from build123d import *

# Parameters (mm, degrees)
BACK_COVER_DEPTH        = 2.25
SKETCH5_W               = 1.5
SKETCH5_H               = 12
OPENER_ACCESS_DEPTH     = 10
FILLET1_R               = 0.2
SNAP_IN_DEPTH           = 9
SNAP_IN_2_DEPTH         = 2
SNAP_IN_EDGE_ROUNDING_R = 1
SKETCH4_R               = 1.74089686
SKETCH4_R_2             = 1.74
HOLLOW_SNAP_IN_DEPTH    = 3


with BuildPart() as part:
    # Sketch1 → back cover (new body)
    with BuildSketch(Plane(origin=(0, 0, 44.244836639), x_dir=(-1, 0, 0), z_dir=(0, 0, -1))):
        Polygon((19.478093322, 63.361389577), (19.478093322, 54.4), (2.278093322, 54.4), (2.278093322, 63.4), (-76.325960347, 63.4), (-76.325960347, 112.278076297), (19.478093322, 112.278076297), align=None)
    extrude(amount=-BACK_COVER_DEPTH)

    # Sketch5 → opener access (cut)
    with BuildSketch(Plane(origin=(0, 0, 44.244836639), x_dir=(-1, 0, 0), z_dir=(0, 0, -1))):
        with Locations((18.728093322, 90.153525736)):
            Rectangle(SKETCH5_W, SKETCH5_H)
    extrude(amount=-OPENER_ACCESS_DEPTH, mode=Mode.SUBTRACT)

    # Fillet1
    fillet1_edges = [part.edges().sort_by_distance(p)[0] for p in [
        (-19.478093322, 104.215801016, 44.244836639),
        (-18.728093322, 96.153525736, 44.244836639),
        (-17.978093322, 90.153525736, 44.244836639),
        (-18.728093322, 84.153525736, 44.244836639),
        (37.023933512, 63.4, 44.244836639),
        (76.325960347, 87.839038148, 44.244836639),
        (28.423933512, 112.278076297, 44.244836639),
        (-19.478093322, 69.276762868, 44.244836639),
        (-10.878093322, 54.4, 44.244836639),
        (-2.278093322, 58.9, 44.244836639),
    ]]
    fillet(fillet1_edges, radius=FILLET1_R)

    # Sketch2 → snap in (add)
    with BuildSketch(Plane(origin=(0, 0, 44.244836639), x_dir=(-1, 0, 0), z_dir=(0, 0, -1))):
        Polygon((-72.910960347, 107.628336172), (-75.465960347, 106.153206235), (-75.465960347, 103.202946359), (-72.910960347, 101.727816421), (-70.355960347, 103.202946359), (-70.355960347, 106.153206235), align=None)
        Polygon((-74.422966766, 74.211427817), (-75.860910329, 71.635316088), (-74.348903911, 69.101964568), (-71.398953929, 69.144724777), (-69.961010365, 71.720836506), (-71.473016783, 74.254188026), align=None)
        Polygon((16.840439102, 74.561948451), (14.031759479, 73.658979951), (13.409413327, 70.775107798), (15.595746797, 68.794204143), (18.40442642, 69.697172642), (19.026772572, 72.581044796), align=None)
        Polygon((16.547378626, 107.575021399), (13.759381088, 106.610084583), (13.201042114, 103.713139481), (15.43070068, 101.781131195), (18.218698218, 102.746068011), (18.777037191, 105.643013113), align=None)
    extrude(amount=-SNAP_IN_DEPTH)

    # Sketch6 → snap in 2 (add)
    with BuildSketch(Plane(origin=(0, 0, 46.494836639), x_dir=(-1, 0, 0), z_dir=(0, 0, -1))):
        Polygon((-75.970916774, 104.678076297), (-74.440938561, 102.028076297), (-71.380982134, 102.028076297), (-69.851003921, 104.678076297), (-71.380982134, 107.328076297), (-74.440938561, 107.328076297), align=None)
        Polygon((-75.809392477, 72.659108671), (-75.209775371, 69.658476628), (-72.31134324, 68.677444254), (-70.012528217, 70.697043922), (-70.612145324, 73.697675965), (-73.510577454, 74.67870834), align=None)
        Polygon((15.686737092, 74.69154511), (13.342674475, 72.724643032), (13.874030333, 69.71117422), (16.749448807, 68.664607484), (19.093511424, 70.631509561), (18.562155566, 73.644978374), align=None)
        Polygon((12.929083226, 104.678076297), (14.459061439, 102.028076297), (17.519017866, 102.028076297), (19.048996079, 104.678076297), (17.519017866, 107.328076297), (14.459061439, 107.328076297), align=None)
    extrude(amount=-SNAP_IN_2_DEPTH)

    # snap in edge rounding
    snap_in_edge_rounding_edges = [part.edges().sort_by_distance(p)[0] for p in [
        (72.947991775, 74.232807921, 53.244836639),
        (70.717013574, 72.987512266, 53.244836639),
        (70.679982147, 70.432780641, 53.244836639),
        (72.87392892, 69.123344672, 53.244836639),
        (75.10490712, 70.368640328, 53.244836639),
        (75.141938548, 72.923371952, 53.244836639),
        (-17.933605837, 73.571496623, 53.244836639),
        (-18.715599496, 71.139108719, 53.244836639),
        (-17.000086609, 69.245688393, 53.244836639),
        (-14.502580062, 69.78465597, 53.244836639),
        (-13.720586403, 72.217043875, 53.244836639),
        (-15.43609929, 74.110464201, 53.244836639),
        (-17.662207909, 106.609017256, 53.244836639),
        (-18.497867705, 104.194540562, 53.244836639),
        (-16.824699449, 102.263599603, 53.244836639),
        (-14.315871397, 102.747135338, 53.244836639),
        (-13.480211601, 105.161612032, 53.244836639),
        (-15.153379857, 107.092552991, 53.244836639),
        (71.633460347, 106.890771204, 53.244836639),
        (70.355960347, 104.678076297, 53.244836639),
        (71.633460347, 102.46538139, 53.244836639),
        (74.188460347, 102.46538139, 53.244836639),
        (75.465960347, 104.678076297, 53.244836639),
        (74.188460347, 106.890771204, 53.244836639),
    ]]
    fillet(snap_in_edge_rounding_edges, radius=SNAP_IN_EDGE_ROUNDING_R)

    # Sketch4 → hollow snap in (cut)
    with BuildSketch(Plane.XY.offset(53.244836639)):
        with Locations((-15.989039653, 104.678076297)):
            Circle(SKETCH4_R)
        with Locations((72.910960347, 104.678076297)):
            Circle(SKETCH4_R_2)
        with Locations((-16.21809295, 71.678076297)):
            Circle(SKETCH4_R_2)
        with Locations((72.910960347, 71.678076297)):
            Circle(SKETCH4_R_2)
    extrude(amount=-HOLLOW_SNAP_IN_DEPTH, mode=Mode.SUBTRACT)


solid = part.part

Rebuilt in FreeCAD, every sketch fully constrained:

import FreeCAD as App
import Part
import Sketcher
from FreeCAD import Vector
Q = App.Units.Quantity


def edges_at(feature, points):
    """Names of the edges that pass closest to the given points."""
    edges = feature.Shape.Edges
    near = lambda p: min(range(len(edges)), key=lambda i: edges[i].distToShape(Part.Vertex(*p))[0])
    return sorted({f"Edge{near(p) + 1}" for p in points})


def add_polygon(sketch, points):
    """Adds a closed chain of lines whose ends are joined by coincident constraints."""
    first, n = sketch.GeometryCount, len(points)
    for a, b in zip(points, points[1:] + points[:1]):
        sketch.addGeometry(Part.LineSegment(App.Vector(*a, 0), App.Vector(*b, 0)), False)
    for i in range(n):
        sketch.addConstraint(Sketcher.Constraint("Coincident", first + i, 2, first + (i + 1) % n, 1))

doc = App.newDocument("Part")
body = doc.addObject("PartDesign::Body", "Body")

# Sketch on XY plane
sketch1 = body.newObject("Sketcher::SketchObject", "Sketch")
sketch1.AttachmentSupport = (doc.getObject("XY_Plane"), [""])
sketch1.MapMode = "FlatFace"
sketch1.AttachmentOffset = App.Placement(Vector(0, 0, 44.244837), App.Rotation())
add_polygon(sketch1, [(-19, 54), (-19, 112), (76, 112), (76, 63), (-2, 63), (-2, 54)])  # lines 0-5
sketch1.addConstraint([
    Sketcher.Constraint("Vertical", 0),
    Sketcher.Constraint("Horizontal", 1),
    Sketcher.Constraint("Vertical", 2),
    Sketcher.Constraint("Horizontal", 3),
    Sketcher.Constraint("Vertical", 4),
    Sketcher.Constraint("Horizontal", 5),
    Sketcher.Constraint("DistanceY", 4, 2, 4, 1, 9.0),
    Sketcher.Constraint("DistanceX", 5, 2, 5, 1, 17.2),
    Sketcher.Constraint("DistanceY", -1, 1, 2, 2, 63.4),
    Sketcher.Constraint("DistanceX", 1, 1, 1, 2, 95.804054),
    Sketcher.Constraint("DistanceY", 0, 1, 0, 2, 57.878076),
    Sketcher.Constraint("DistanceX", -1, 1, 1, 2, 76.32596),
])
pad1 = body.newObject("PartDesign::Pad", "Pad")
pad1.Profile = sketch1
pad1.Length = 2.25

# Sketch on XY plane
sketch2 = body.newObject("Sketcher::SketchObject", "Sketch001")
sketch2.AttachmentSupport = (doc.getObject("XY_Plane"), [""])
sketch2.MapMode = "FlatFace"
sketch2.AttachmentOffset = App.Placement(Vector(0, 0, 44.244837), App.Rotation())
add_polygon(sketch2, [(-18, 96.2), (-18, 84.2), (-19.5, 84.2), (-19.5, 96.2)])  # lines 0-3
sketch2.addConstraint([
    Sketcher.Constraint("Vertical", 0),
    Sketcher.Constraint("Horizontal", 1),
    Sketcher.Constraint("Vertical", 2),
    Sketcher.Constraint("Horizontal", 3),
    Sketcher.Constraint("DistanceY", 0, 2, 0, 1, 12.0),
    Sketcher.Constraint("DistanceX", 1, 2, 1, 1, 1.5),
    Sketcher.Constraint("DistanceX", 0, 2, -1, 1, 17.978093),
    Sketcher.Constraint("DistanceY", -1, 1, 0, 2, 84.153526),
])
pocket1 = body.newObject("PartDesign::Pocket", "Pocket")
pocket1.Profile = sketch2
pocket1.Length = 10
pocket1.Reversed = True
doc.recompute()

fillet = body.newObject("PartDesign::Fillet", "Fillet")
fillet.Base = (pocket1, edges_at(pocket1, [
    (-19.478, 104.216, 44.245),
    (-18.728, 96.154, 44.245),
    (-17.978, 90.154, 44.245),
    (-18.728, 84.154, 44.245),
    (37.024, 63.4, 44.245),
    (76.326, 87.839, 44.245),
    (28.424, 112.278, 44.245),
    (-19.478, 69.277, 44.245),
    (-10.878, 54.4, 44.245),
    (-2.278, 58.9, 44.245),
]))
fillet.Radius = 0.2

# Sketch on XY plane
sketch3 = body.newObject("Sketcher::SketchObject", "Sketch002")
sketch3.AttachmentSupport = (doc.getObject("XY_Plane"), [""])
sketch3.MapMode = "FlatFace"
sketch3.AttachmentOffset = App.Placement(Vector(0, 0, 44.244837), App.Rotation())
add_polygon(sketch3, [(72.9, 107.6), (75.5, 106.2), (75.5, 103.2), (72.9, 101.7), (70.4, 103.2), (70.4, 106.2)])  # lines 0-5
add_polygon(sketch3, [(74.4, 74.2), (75.9, 71.6), (74.3, 69.1), (71.4, 69.1), (70, 71.7), (71.5, 74.3)])  # lines 6-11
add_polygon(sketch3, [(-16.8, 74.6), (-14, 73.7), (-13.4, 70.8), (-15.6, 68.8), (-18.4, 69.7), (-19, 72.6)])  # lines 12-17
add_polygon(sketch3, [(-16.5, 107.6), (-13.8, 106.6), (-13.2, 103.7), (-15.4, 101.8), (-18.2, 102.7), (-18.8, 105.6)])  # lines 18-23
sketch3.addConstraint([
    Sketcher.Constraint("Vertical", 1),
    Sketcher.Constraint("Vertical", 4),
    Sketcher.Constraint("Parallel", 0, 3),
    Sketcher.Constraint("Parallel", 2, 5),
    Sketcher.Constraint("Parallel", 6, 9),
    Sketcher.Constraint("Parallel", 7, 10),
    Sketcher.Constraint("Parallel", 8, 11),
    Sketcher.Constraint("Parallel", 12, 15),
    Sketcher.Constraint("Parallel", 13, 16),
    Sketcher.Constraint("Parallel", 14, 17),
    Sketcher.Constraint("Parallel", 18, 21),
    Sketcher.Constraint("Parallel", 19, 22),
    Sketcher.Constraint("Parallel", 20, 23),
    Sketcher.Constraint("Horizontal", 1, 2, 3, 2),
    Sketcher.Constraint("Horizontal", 0, 2, 4, 2),
    Sketcher.Constraint("Vertical", 2, 2, 5, 2),
    Sketcher.Constraint("Equal", 5, 6),
    Sketcher.Constraint("Equal", 6, 7),
    Sketcher.Constraint("Equal", 7, 8),
    Sketcher.Constraint("Equal", 8, 9),
    Sketcher.Constraint("Equal", 11, 12),
    Sketcher.Constraint("Equal", 12, 13),
    Sketcher.Constraint("Equal", 13, 14),
    Sketcher.Constraint("Equal", 14, 15),
    Sketcher.Constraint("Equal", 17, 18),
    Sketcher.Constraint("Equal", 18, 19),
    Sketcher.Constraint("Equal", 19, 20),
    Sketcher.Constraint("Equal", 20, 21),
    Sketcher.Constraint("Angle", 0, Q("-30 deg")),
    Sketcher.Constraint("DistanceX", 3, 2, 1, 2, 5.11),
    Sketcher.Constraint("DistanceY", 1, 2, 1, 1, 2.95026),
    Sketcher.Constraint("DistanceX", 20, 2, -1, 1, 15.430701),
    Sketcher.Constraint("DistanceX", 21, 2, -1, 1, 18.218698),
    Sketcher.Constraint("DistanceY", 6, 2, 2, 2, 30.0925),
    Sketcher.Constraint("DistanceX", 9, 2, 6, 2, 5.8999),
    Sketcher.Constraint("DistanceX", 14, 2, 8, 2, 86.994701),
    Sketcher.Constraint("DistanceX", 22, 2, 17, 2, 1.936598),
    Sketcher.Constraint("DistanceX", -1, 1, 0, 2, 75.46596),
    Sketcher.Constraint("DistanceX", -1, 1, 6, 2, 75.86091),
    Sketcher.Constraint("DistanceY", -1, 1, 10, 2, 74.254188),
    Sketcher.Constraint("DistanceX", 12, 2, -1, 1, 14.031759),
    Sketcher.Constraint("DistanceY", -1, 1, 12, 2, 73.65898),
    Sketcher.Constraint("DistanceX", 17, 2, -1, 1, 16.840439),
    Sketcher.Constraint("DistanceX", 18, 2, -1, 1, 13.759381),
    Sketcher.Constraint("DistanceY", -1, 1, 19, 2, 103.713139),
    Sketcher.Constraint("DistanceY", 7, 2, 6, 2, 2.533352),
    Sketcher.Constraint("DistanceX", 8, 2, 7, 2, 2.94995),
    Sketcher.Constraint("DistanceY", 13, 2, 9, 2, 0.945729),
])
pad2 = body.newObject("PartDesign::Pad", "Pad001")
pad2.Profile = sketch3
pad2.Length = 9

# Sketch on XY plane
sketch4 = body.newObject("Sketcher::SketchObject", "Sketch003")
sketch4.AttachmentSupport = (doc.getObject("XY_Plane"), [""])
sketch4.MapMode = "FlatFace"
sketch4.AttachmentOffset = App.Placement(Vector(0, 0, 46.494837), App.Rotation())
add_polygon(sketch4, [(76, 104.7), (74.4, 102), (71.4, 102), (69.9, 104.7), (71.4, 107.3), (74.4, 107.3)])  # lines 0-5
add_polygon(sketch4, [(75.8, 72.7), (75.2, 69.7), (72.3, 68.7), (70, 70.7), (70.6, 73.7), (73.5, 74.7)])  # lines 6-11
add_polygon(sketch4, [(-15.7, 74.7), (-13.3, 72.7), (-13.9, 69.7), (-16.7, 68.7), (-19.1, 70.6), (-18.6, 73.6)])  # lines 12-17
add_polygon(sketch4, [(-12.9, 104.7), (-14.5, 102), (-17.5, 102), (-19, 104.7), (-17.5, 107.3), (-14.5, 107.3)])  # lines 18-23
sketch4.addConstraint([
    Sketcher.Constraint("Horizontal", 1),
    Sketcher.Constraint("Horizontal", 4),
    Sketcher.Constraint("Horizontal", 19),
    Sketcher.Constraint("Horizontal", 22),
    Sketcher.Constraint("Parallel", 0, 3),
    Sketcher.Constraint("Parallel", 2, 5),
    Sketcher.Constraint("Parallel", 6, 9),
    Sketcher.Constraint("Parallel", 7, 10),
    Sketcher.Constraint("Parallel", 8, 11),
    Sketcher.Constraint("Parallel", 12, 15),
    Sketcher.Constraint("Parallel", 13, 16),
    Sketcher.Constraint("Parallel", 14, 17),
    Sketcher.Constraint("Parallel", 3, 18),
    Sketcher.Constraint("Parallel", 5, 20),
    Sketcher.Constraint("Parallel", 18, 21),
    Sketcher.Constraint("Parallel", 20, 23),
    Sketcher.Constraint("Horizontal", 2, 2, 5, 2),
    Sketcher.Constraint("Horizontal", 1, 2, 18, 2),
    Sketcher.Constraint("Horizontal", 5, 2, 20, 2),
    Sketcher.Constraint("Horizontal", 4, 2, 21, 2),
    Sketcher.Constraint("Horizontal", 20, 2, 23, 2),
    Sketcher.Constraint("Vertical", 1, 2, 3, 2),
    Sketcher.Constraint("Vertical", 0, 2, 4, 2),
    Sketcher.Constraint("Equal", 4, 19),
    Sketcher.Constraint("Equal", 5, 6),
    Sketcher.Constraint("Equal", 6, 7),
    Sketcher.Constraint("Equal", 7, 8),
    Sketcher.Constraint("Equal", 8, 9),
    Sketcher.Constraint("Equal", 11, 12),
    Sketcher.Constraint("Equal", 12, 13),
    Sketcher.Constraint("Equal", 13, 14),
    Sketcher.Constraint("Equal", 14, 15),
    Sketcher.Constraint("Angle", 0, Q("-120 deg")),
    Sketcher.Constraint("Angle", 12, Q("-40 deg")),
    Sketcher.Constraint("Angle", 13, Q("-100 deg")),
    Sketcher.Constraint("Angle", 14, Q("-160 deg")),
    Sketcher.Constraint("DistanceY", 1, 2, 3, 2, 5.3),
    Sketcher.Constraint("DistanceY", 6, 2, 0, 2, 32.3696),
    Sketcher.Constraint("DistanceY", 7, 2, 8, 2, 2.0196),
    Sketcher.Constraint("DistanceY", 6, 2, 9, 2, 4.039199),
    Sketcher.Constraint("DistanceY", 8, 2, 12, 2, 2.027599),
    Sketcher.Constraint("DistanceY", 13, 2, 9, 2, 3.986502),
    Sketcher.Constraint("DistanceX", 1, 2, 1, 1, 3.059956),
    Sketcher.Constraint("DistanceX", -1, 1, 0, 2, 74.440939),
    Sketcher.Constraint("DistanceX", -1, 1, 8, 2, 70.012528),
    Sketcher.Constraint("DistanceY", -1, 1, 10, 2, 74.678708),
    Sketcher.Constraint("DistanceX", 13, 2, -1, 1, 13.87403),
    Sketcher.Constraint("DistanceX", 18, 2, -1, 1, 14.459061),
])
pad3 = body.newObject("PartDesign::Pad", "Pad002")
pad3.Profile = sketch4
pad3.Length = 2
doc.recompute()

fillet2 = body.newObject("PartDesign::Fillet", "Fillet001")
fillet2.Base = (pad3, edges_at(pad3, [
    (72.948, 74.233, 53.245),
    (70.717, 72.988, 53.245),
    (70.68, 70.433, 53.245),
    (72.874, 69.123, 53.245),
    (75.105, 70.369, 53.245),
    (75.142, 72.923, 53.245),
    (-17.934, 73.571, 53.245),
    (-18.716, 71.139, 53.245),
    (-17, 69.246, 53.245),
    (-14.503, 69.785, 53.245),
    (-13.721, 72.217, 53.245),
    (-15.436, 74.11, 53.245),
    (-17.662, 106.609, 53.245),
    (-18.498, 104.195, 53.245),
    (-16.825, 102.264, 53.245),
    (-14.316, 102.747, 53.245),
    (-13.48, 105.162, 53.245),
    (-15.153, 107.093, 53.245),
    (71.633, 106.891, 53.245),
    (70.356, 104.678, 53.245),
    (71.633, 102.465, 53.245),
    (74.188, 102.465, 53.245),
    (75.466, 104.678, 53.245),
    (74.188, 106.891, 53.245),
]))
fillet2.Radius = 1

# Sketch on XY plane
sketch5 = body.newObject("Sketcher::SketchObject", "Sketch004")
sketch5.AttachmentSupport = (doc.getObject("XY_Plane"), [""])
sketch5.MapMode = "FlatFace"
sketch5.AttachmentOffset = App.Placement(Vector(0, 0, 53.244837), App.Rotation())
sketch5.addGeometry([
    Part.Circle(Vector(-16, 104.7, 0), Vector(0, 0, 1), 1.7),
    Part.Circle(Vector(72.9, 104.7, 0), Vector(0, 0, 1), 1.7),
    Part.Circle(Vector(-16.2, 71.7, 0), Vector(0, 0, 1), 1.7),
    Part.Circle(Vector(72.9, 71.7, 0), Vector(0, 0, 1), 1.7),
], False)
sketch5.addConstraint([
    Sketcher.Constraint("Equal", 1, 2),
    Sketcher.Constraint("Equal", 2, 3),
    Sketcher.Constraint("Horizontal", 0, 3, 1, 3),
    Sketcher.Constraint("Horizontal", 2, 3, 3, 3),
    Sketcher.Constraint("Vertical", 1, 3, 3, 3),
    Sketcher.Constraint("Diameter", 1, 3.48),
    Sketcher.Constraint("DistanceY", 2, 3, 0, 3, 33.0),
    Sketcher.Constraint("DistanceX", 0, 3, 1, 3, 88.9),
    Sketcher.Constraint("Diameter", 0, 3.481794),
    Sketcher.Constraint("DistanceX", 0, 3, -1, 1, 15.98904),
    Sketcher.Constraint("DistanceY", -1, 1, 0, 3, 104.678076),
    Sketcher.Constraint("DistanceX", 2, 3, -1, 1, 16.218093),
])
pocket2 = body.newObject("PartDesign::Pocket", "Pocket001")
pocket2.Profile = sketch5
pocket2.Length = 3

doc.recompute()
